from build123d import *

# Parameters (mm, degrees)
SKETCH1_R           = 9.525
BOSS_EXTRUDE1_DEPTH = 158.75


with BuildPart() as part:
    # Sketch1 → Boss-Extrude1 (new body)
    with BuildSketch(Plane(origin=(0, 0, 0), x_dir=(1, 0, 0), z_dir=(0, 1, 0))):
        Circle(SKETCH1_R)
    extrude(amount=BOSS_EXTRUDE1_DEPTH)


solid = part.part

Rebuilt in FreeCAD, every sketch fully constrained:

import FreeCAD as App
import Part
import Sketcher
from FreeCAD import Vector
Q = App.Units.Quantity

doc = App.newDocument("Part")
body = doc.addObject("PartDesign::Body", "Body")

# Sketch on XZ plane
sketch1 = body.newObject("Sketcher::SketchObject", "Sketch")
sketch1.AttachmentSupport = (doc.getObject("XZ_Plane"), [""])
sketch1.MapMode = "FlatFace"
sketch1.addGeometry(Part.Circle(Vector(0, 0, 0), Vector(0, 0, 1), 9.525), False)
sketch1.addConstraint([
    Sketcher.Constraint("Coincident", 0, 3, -1, 1),
    Sketcher.Constraint("Diameter", 0, Q("0.75 in")),
])
pad1 = body.newObject("PartDesign::Pad", "Pad")
pad1.Profile = sketch1
pad1.Length = Q("6.25 in")
pad1.Reversed = True

doc.recompute()
